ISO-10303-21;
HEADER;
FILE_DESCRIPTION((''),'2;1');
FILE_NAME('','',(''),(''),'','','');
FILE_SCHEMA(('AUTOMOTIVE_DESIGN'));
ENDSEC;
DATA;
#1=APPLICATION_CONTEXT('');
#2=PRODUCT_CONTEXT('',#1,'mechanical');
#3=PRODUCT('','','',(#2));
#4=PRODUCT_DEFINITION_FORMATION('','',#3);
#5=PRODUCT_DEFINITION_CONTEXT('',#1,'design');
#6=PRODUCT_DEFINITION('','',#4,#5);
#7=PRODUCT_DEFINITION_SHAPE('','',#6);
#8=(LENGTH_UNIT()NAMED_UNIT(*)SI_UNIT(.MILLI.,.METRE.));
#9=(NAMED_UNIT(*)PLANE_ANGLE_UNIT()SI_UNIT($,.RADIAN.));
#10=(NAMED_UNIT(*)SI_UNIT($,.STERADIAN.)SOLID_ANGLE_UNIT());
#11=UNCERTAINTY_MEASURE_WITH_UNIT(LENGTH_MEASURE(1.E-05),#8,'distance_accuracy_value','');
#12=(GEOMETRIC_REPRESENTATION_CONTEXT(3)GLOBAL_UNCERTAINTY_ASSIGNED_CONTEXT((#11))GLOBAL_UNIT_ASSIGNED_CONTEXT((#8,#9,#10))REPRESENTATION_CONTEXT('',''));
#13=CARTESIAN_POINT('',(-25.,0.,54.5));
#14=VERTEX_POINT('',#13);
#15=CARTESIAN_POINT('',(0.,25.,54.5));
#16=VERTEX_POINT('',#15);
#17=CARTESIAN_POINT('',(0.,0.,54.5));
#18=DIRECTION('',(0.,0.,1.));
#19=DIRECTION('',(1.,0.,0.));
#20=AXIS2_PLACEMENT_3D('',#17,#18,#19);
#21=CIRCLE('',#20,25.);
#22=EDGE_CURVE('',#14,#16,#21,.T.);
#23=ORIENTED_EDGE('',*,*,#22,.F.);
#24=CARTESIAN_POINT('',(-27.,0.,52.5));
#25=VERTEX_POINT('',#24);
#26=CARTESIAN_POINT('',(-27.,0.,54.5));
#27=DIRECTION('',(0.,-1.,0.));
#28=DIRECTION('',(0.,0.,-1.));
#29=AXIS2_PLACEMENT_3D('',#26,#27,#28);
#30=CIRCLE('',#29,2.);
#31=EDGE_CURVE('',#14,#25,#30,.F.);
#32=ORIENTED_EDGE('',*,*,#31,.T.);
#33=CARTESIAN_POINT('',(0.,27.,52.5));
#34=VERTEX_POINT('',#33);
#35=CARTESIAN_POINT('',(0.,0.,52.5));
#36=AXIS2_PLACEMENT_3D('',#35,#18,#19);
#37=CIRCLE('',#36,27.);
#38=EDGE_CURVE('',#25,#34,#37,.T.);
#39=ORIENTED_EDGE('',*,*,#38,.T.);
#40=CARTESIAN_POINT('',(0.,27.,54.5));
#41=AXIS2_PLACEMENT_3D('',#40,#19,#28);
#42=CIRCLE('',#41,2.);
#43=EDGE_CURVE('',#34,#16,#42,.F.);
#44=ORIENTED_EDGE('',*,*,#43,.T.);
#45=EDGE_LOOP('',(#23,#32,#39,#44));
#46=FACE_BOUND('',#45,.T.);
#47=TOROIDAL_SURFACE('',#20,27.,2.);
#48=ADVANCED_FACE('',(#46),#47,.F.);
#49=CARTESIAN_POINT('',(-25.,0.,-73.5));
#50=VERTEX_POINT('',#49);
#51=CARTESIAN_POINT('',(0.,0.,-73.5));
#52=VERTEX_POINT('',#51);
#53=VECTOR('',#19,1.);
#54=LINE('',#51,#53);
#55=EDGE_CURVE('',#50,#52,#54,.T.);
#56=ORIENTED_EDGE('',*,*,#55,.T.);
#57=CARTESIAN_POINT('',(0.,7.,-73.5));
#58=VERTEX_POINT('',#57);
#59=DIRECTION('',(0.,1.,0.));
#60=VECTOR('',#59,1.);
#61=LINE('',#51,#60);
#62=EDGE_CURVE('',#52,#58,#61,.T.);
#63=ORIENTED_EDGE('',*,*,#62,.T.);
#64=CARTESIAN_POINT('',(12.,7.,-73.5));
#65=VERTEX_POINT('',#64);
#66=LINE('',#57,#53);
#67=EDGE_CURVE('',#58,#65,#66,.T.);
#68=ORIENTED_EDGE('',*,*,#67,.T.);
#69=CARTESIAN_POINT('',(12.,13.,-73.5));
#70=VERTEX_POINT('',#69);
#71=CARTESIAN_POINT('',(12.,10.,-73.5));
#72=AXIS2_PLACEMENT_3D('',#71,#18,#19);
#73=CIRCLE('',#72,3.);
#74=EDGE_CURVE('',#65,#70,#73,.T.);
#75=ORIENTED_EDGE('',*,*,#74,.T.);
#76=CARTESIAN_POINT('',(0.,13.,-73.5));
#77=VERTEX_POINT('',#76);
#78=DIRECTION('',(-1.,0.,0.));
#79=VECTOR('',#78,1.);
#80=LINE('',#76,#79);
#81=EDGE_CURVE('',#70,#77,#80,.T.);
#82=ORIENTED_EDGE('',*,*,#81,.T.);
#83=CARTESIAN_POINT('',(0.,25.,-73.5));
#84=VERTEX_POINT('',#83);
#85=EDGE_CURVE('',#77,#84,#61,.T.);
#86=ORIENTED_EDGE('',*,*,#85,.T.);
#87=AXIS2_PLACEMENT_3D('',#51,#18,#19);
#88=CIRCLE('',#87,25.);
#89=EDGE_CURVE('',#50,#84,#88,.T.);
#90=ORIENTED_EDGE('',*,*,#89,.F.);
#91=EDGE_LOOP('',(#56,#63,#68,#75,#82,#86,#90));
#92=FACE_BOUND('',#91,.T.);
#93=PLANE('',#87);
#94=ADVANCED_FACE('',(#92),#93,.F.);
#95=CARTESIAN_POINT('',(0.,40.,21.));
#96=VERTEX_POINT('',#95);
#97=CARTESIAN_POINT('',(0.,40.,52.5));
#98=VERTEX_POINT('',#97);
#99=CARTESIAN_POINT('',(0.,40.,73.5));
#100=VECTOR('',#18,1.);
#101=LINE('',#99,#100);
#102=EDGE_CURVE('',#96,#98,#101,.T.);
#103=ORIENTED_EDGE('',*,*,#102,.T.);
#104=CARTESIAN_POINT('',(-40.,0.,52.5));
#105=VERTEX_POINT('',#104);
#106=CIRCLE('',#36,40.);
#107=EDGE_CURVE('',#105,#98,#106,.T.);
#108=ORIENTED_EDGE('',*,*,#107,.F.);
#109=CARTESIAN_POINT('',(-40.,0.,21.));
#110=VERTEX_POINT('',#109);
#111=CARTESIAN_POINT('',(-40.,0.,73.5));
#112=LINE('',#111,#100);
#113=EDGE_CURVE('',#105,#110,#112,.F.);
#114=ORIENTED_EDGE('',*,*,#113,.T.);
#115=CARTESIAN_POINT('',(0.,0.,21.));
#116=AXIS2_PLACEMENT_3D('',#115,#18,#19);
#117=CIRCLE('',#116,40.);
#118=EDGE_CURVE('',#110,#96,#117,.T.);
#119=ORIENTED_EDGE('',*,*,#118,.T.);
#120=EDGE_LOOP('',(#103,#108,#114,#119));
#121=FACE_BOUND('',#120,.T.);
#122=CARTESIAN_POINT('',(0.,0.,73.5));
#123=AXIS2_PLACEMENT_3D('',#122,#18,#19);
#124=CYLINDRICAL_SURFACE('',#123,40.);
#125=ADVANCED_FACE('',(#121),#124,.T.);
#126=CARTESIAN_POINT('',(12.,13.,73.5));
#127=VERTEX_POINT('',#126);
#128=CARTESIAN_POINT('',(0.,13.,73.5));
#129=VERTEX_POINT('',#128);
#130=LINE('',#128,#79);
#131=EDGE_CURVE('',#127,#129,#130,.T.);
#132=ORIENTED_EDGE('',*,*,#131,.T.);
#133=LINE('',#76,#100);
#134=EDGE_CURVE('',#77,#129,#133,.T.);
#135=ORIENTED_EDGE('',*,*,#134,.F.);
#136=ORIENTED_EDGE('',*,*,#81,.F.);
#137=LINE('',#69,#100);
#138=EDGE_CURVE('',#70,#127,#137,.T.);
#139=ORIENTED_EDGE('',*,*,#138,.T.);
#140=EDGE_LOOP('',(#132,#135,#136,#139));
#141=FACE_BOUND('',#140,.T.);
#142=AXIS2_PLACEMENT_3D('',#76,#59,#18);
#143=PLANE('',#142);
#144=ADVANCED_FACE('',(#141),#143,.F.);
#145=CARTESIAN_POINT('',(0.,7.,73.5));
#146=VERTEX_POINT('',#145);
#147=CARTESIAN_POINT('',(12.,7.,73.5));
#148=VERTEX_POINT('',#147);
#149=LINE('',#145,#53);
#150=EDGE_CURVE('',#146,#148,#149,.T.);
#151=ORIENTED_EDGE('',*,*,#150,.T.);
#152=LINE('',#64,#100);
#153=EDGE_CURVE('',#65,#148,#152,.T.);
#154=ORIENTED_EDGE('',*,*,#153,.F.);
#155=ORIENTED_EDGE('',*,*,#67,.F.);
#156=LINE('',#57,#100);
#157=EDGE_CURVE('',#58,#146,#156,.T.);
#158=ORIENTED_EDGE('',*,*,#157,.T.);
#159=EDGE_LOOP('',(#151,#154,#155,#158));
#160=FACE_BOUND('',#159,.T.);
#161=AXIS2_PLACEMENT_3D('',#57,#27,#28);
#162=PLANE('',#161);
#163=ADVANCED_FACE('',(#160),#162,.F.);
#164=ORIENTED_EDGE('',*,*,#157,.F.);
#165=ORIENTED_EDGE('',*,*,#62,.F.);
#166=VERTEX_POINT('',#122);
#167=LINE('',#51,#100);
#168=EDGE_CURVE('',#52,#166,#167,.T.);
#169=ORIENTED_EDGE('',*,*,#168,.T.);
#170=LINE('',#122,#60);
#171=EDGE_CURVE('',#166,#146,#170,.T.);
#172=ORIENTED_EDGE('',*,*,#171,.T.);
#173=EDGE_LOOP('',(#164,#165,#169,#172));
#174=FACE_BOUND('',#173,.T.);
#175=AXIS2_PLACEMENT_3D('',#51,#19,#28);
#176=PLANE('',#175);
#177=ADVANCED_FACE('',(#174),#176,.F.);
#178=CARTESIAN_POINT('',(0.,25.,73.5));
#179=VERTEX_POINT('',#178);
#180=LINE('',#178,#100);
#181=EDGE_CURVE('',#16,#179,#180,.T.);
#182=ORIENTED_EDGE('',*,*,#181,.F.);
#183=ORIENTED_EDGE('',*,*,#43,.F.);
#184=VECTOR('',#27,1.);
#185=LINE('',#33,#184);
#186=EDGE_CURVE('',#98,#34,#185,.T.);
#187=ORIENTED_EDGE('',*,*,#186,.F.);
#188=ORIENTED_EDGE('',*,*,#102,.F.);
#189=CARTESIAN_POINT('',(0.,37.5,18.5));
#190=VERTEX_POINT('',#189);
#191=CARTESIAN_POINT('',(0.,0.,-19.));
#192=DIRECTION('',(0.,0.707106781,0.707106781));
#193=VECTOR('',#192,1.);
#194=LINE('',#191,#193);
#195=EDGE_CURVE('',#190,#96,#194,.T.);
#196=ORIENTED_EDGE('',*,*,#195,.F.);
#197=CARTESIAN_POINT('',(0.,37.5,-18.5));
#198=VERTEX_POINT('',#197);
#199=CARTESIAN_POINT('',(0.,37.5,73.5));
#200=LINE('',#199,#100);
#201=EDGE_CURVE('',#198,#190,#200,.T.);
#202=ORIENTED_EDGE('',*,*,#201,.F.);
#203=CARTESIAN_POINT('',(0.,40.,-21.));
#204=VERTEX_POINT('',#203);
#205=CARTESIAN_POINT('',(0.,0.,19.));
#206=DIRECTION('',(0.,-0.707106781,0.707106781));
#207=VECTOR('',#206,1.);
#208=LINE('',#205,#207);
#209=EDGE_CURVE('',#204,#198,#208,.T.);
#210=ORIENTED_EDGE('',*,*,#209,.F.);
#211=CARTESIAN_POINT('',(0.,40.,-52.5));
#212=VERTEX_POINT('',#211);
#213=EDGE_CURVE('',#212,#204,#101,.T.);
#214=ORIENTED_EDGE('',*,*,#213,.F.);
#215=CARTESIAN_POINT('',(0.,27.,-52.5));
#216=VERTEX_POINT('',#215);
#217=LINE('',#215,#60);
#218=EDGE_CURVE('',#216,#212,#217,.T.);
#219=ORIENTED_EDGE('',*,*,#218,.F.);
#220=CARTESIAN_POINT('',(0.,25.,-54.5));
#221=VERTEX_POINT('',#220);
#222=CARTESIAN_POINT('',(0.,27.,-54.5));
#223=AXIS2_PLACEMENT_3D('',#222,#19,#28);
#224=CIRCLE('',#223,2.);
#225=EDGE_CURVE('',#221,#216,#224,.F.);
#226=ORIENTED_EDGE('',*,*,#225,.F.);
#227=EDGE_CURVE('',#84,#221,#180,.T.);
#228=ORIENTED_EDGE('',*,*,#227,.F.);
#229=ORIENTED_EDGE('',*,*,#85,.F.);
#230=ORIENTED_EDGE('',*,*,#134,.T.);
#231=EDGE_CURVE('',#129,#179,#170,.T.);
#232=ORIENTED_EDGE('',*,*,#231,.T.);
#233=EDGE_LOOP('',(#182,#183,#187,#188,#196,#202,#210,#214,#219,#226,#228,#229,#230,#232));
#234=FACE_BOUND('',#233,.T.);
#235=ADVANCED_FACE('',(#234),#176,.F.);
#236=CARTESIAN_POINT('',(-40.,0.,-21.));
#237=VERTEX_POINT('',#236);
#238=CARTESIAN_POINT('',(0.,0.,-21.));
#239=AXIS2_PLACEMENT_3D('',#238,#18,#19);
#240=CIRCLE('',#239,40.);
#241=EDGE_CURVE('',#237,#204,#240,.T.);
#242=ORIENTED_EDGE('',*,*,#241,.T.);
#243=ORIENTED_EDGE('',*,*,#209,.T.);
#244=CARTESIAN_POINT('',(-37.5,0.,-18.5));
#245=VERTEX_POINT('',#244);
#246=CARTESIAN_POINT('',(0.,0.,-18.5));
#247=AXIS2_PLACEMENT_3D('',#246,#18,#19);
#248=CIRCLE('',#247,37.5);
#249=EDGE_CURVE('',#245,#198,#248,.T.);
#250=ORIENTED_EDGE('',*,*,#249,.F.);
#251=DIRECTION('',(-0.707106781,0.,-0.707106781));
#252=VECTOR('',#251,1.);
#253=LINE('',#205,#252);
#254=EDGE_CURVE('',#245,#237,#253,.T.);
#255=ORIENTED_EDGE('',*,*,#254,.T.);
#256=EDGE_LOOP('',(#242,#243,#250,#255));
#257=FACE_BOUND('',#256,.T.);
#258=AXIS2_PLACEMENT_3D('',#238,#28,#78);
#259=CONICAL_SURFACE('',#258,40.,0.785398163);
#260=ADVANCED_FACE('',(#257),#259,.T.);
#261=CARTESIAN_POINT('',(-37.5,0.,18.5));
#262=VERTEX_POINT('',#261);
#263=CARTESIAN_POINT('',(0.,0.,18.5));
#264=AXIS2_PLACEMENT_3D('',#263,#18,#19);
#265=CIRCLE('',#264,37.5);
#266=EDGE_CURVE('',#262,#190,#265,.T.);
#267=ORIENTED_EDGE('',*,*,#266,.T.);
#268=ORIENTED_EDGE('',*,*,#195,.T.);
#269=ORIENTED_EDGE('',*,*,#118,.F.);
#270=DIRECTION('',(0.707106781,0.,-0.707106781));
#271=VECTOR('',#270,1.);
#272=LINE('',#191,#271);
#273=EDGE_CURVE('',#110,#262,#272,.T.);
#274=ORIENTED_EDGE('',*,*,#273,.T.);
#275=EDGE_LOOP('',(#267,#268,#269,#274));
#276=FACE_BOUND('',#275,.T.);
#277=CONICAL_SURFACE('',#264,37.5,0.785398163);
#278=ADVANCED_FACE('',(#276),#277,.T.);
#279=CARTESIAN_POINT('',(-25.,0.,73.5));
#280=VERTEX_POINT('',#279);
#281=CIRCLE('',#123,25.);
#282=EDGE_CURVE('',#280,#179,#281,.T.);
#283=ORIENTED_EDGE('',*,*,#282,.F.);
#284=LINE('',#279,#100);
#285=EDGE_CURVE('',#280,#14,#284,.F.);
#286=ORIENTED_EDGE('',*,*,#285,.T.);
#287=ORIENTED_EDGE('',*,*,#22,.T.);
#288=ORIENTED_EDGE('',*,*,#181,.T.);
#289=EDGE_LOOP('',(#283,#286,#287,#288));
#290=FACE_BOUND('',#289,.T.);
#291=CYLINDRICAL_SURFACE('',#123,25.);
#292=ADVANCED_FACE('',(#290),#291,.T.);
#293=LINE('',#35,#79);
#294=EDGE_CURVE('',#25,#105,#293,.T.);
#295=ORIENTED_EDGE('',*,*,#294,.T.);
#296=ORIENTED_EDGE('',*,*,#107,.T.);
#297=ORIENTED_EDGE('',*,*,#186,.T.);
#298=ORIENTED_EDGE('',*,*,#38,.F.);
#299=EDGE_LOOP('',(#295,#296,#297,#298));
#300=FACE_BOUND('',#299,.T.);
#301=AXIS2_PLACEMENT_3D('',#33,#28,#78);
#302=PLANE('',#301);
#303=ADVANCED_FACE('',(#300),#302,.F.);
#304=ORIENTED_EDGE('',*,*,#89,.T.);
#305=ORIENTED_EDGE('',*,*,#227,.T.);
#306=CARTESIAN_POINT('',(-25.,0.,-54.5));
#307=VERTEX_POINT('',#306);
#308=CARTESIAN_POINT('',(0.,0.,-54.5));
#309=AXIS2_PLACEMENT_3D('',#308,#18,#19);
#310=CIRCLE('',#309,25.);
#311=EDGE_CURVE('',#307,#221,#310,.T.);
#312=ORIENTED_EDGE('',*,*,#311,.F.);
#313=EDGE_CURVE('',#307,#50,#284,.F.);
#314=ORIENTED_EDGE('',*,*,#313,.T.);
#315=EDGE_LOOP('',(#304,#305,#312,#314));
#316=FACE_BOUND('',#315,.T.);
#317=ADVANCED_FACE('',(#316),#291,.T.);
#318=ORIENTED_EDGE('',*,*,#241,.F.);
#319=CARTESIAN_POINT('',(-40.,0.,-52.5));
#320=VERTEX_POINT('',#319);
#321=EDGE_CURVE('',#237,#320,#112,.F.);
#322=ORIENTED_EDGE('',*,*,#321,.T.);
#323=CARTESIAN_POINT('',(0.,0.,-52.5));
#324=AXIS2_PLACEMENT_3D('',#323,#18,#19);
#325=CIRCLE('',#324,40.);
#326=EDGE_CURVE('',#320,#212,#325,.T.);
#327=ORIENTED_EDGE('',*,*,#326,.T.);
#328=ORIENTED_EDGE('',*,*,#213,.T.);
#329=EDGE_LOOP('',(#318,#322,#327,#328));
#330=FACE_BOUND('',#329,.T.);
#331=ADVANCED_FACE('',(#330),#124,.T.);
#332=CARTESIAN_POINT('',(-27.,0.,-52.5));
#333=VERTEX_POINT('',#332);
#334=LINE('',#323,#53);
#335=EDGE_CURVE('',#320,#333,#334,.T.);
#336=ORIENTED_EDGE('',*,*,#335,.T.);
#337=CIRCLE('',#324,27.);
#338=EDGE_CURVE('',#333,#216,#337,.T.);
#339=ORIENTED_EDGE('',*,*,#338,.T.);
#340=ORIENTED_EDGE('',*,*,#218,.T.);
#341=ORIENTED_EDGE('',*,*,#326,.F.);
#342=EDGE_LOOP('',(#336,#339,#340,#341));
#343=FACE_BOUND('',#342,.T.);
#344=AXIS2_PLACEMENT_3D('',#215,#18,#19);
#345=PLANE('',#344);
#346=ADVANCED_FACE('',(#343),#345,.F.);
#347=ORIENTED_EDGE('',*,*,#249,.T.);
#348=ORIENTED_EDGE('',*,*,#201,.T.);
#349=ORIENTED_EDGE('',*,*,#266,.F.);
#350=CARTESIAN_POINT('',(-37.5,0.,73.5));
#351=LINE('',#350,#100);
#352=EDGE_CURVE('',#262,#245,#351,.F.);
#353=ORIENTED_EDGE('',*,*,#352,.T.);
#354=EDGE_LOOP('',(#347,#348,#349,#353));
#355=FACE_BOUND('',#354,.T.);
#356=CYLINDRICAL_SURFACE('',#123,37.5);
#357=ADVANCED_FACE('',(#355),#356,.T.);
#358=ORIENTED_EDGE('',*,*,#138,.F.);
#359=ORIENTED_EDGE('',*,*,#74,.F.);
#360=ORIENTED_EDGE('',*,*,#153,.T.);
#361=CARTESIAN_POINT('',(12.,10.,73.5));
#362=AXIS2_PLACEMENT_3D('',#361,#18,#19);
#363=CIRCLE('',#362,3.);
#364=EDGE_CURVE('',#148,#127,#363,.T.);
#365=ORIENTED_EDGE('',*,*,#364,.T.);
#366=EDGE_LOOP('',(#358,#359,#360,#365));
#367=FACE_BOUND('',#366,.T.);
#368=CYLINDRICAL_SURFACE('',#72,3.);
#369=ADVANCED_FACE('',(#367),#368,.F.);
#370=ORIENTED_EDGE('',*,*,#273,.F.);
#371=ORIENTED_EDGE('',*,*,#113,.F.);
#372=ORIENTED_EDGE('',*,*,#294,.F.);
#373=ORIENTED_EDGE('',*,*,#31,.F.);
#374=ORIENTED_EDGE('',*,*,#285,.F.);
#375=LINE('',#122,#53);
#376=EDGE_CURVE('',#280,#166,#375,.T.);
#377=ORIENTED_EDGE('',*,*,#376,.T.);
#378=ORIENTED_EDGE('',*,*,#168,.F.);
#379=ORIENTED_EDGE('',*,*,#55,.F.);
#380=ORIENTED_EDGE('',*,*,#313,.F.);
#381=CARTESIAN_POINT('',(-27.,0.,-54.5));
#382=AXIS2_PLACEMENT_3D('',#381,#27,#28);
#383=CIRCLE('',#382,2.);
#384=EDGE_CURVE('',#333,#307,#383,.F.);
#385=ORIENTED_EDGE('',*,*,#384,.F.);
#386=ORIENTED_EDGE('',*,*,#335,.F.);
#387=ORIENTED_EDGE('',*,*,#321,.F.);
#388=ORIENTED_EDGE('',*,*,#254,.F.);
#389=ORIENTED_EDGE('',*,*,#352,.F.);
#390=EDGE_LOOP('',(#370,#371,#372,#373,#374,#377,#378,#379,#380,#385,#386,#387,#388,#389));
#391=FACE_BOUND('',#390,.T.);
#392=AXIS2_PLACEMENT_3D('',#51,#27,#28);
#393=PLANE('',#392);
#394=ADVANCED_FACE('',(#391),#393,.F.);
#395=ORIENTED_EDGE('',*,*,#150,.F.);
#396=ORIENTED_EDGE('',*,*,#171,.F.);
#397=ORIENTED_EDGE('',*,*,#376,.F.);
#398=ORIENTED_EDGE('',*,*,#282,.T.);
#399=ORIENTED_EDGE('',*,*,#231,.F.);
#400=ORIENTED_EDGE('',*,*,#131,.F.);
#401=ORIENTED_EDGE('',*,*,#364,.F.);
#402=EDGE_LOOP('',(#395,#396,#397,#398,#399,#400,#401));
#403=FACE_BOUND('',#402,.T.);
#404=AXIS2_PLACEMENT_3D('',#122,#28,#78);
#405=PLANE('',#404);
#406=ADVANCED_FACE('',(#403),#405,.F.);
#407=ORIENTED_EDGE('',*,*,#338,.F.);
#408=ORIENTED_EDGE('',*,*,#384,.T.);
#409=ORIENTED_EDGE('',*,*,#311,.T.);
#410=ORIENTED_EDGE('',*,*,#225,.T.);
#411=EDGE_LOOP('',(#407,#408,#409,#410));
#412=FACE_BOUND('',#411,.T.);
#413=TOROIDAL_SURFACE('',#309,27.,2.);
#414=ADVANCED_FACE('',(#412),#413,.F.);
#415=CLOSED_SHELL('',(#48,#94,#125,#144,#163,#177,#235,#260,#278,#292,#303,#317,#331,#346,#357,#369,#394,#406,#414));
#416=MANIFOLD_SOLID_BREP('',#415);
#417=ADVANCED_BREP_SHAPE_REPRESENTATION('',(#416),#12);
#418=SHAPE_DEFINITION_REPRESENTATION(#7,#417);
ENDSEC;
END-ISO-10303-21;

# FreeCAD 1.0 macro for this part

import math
import FreeCAD as App
import Part
import Sketcher

V = App.Vector
Q = App.Units.Quantity

doc = App.newDocument("Part")
body = doc.addObject("PartDesign::Body", "Body")

# Sketch on YZ plane
sketch1 = body.newObject("Sketcher::SketchObject", "Sketch")
sketch1.AttachmentSupport = (doc.getObject("YZ_Plane"), [""])
sketch1.MapMode = "FlatFace"
sketch1.addGeometry([
    Part.LineSegment(V(0, 73.5, 0), V(0, -73.5, 0)),  # 0
    Part.LineSegment(V(0, -73.5, 0), V(25, -73.5, 0)),  # 1
    Part.LineSegment(V(25, -73.5, 0), V(25, -54.5, 0)),  # 2
    Part.ArcOfCircle(Part.Circle(V(27, -54.5, 0), V(0, 0, 1), 2), math.radians(90), math.radians(180)),  # 3
    Part.LineSegment(V(27, -52.5, 0), V(40, -52.5, 0)),  # 4
    Part.LineSegment(V(40, -52.5, 0), V(40, -21, 0)),  # 5
    Part.LineSegment(V(40, -21, 0), V(37.5, -18.5, 0)),  # 6
    Part.LineSegment(V(37.5, -18.5, 0), V(37.5, 18.5, 0)),  # 7
    Part.LineSegment(V(37.5, 18.5, 0), V(40, 21, 0)),  # 8
    Part.LineSegment(V(40, 21, 0), V(40, 52.5, 0)),  # 9
    Part.LineSegment(V(40, 52.5, 0), V(27, 52.5, 0)),  # 10
    Part.ArcOfCircle(Part.Circle(V(27, 54.5, 0), V(0, 0, 1), 2), math.radians(-180), math.radians(-90)),  # 11
    Part.LineSegment(V(25, 54.5, 0), V(25, 73.5, 0)),  # 12
    Part.LineSegment(V(25, 73.5, 0), V(0, 73.5, 0)),  # 13
], False)
sketch1.addConstraint([
    Sketcher.Constraint("Coincident", 0, 2, 1, 1),
    Sketcher.Constraint("Coincident", 1, 2, 2, 1),
    Sketcher.Constraint("Tangent", 2, 2, 3, 2),
    Sketcher.Constraint("Tangent", 3, 1, 4, 1),
    Sketcher.Constraint("Coincident", 4, 2, 5, 1),
    Sketcher.Constraint("Coincident", 5, 2, 6, 1),
    Sketcher.Constraint("Coincident", 6, 2, 7, 1),
    Sketcher.Constraint("Coincident", 7, 2, 8, 1),
    Sketcher.Constraint("Coincident", 8, 2, 9, 1),
    Sketcher.Constraint("Coincident", 9, 2, 10, 1),
    Sketcher.Constraint("Tangent", 10, 2, 11, 2),
    Sketcher.Constraint("Tangent", 11, 1, 12, 1),
    Sketcher.Constraint("Coincident", 12, 2, 13, 1),
    Sketcher.Constraint("Coincident", 13, 2, 0, 1),
    Sketcher.Constraint("Vertical", 0),
    Sketcher.Constraint("Horizontal", 1),
    Sketcher.Constraint("Vertical", 2),
    Sketcher.Constraint("Horizontal", 4),
    Sketcher.Constraint("Vertical", 5),
    Sketcher.Constraint("Vertical", 7),
    Sketcher.Constraint("Vertical", 9),
    Sketcher.Constraint("Horizontal", 10),
    Sketcher.Constraint("Vertical", 12),
    Sketcher.Constraint("Horizontal", 13),
    Sketcher.Constraint("Equal", 3, 11),
    Sketcher.Constraint("Symmetric", 0, 2, 13, 2, -1, 1),
    Sketcher.Constraint("Symmetric", 3, 3, 11, 3, -1),
    Sketcher.Constraint("Symmetric", 5, 2, 8, 2, -1),
    Sketcher.Constraint("Perpendicular", 6, 8),
    Sketcher.Constraint("Equal", 6, 8),
    Sketcher.Constraint("Radius", 3, Q("2 mm")),
    Sketcher.Constraint("DistanceX", 1, 1, 1, 2, Q("25 mm")),
    Sketcher.Constraint("DistanceX", 4, 1, 4, 2, Q("13 mm")),
    Sketcher.Constraint("DistanceY", 0, 2, 0, 1, Q("147 mm")),
    Sketcher.Constraint("DistanceY", 2, 1, 2, 2, Q("19 mm")),
    Sketcher.Constraint("DistanceY", 7, 1, 7, 2, Q("37 mm")),
    Sketcher.Constraint("DistanceY", 5, 1, 5, 2, Q("31.5 mm")),
])
revolution = body.newObject("PartDesign::Revolution", "Revolution")
revolution.Profile = sketch1
revolution.ReferenceAxis = (sketch1, ["V_Axis"])
revolution.Angle = 360

# Sketch on XY plane
sketch2 = body.newObject("Sketcher::SketchObject", "Sketch001")
sketch2.AttachmentSupport = (doc.getObject("XY_Plane"), [""])
sketch2.MapMode = "FlatFace"
sketch2.addGeometry([
    Part.LineSegment(V(-49.590286, 55.327856, 0), V(-49.590286, 0, 0)),
    Part.LineSegment(V(-49.590286, 0, 0), V(0, 0, 0)),
    Part.LineSegment(V(0, 0, 0), V(0, 55.327856, 0)),
    Part.LineSegment(V(0, 55.327856, 0), V(-49.590286, 55.327856, 0)),
], False)
sketch2.addConstraint([
    Sketcher.Constraint("Coincident", 0, 2, 1, 1),
    Sketcher.Constraint("Coincident", 1, 2, 2, 1),
    Sketcher.Constraint("Coincident", 2, 2, 3, 1),
    Sketcher.Constraint("Coincident", 3, 2, 0, 1),
    Sketcher.Constraint("Vertical", 0),
    Sketcher.Constraint("Horizontal", 1),
    Sketcher.Constraint("Vertical", 2),
    Sketcher.Constraint("Horizontal", 3),
    Sketcher.Constraint("Coincident", 1, 2, -1, 1),
    Sketcher.Constraint("DistanceX", 1, 1, 1, 2, Q("49.590286 mm")),
    Sketcher.Constraint("DistanceY", 0, 2, 0, 1, Q("55.327856 mm")),
])
pocket1 = body.newObject("PartDesign::Pocket", "Pocket")
pocket1.Profile = sketch2
pocket1.Type = "ThroughAll"
pocket1.Midplane = True

# Sketch on XY plane
sketch3 = body.newObject("Sketcher::SketchObject", "Sketch002")
sketch3.AttachmentSupport = (doc.getObject("XY_Plane"), [""])
sketch3.MapMode = "FlatFace"
sketch3.addGeometry([
    Part.LineSegment(V(0, 7, 0), V(12, 7, 0)),
    Part.ArcOfCircle(Part.Circle(V(12, 10, 0), V(0, 0, 1), 3), math.radians(-90), math.radians(90)),
    Part.LineSegment(V(12, 13, 0), V(0, 13, 0)),
    Part.LineSegment(V(0, 13, 0), V(0, 7, 0)),
], False)
sketch3.addConstraint([
    Sketcher.Constraint("Tangent", 0, 2, 1, 1),
    Sketcher.Constraint("Tangent", 1, 2, 2, 1),
    Sketcher.Constraint("Coincident", 2, 2, 3, 1),
    Sketcher.Constraint("Coincident", 3, 2, 0, 1),
    Sketcher.Constraint("Horizontal", 0),
    Sketcher.Constraint("Horizontal", 2),
    Sketcher.Constraint("Vertical", 3),
    Sketcher.Constraint("PointOnObject", 2, 2, -2),
    Sketcher.Constraint("Radius", 1, Q("3 mm")),
    Sketcher.Constraint("DistanceX", 0, 1, 0, 2, Q("12 mm")),
    Sketcher.Constraint("DistanceY", -1, 1, 1, 3, Q("10 mm")),
])
pocket2 = body.newObject("PartDesign::Pocket", "Pocket001")
pocket2.Profile = sketch3
pocket2.Type = "ThroughAll"
pocket2.Midplane = True

doc.recompute()
